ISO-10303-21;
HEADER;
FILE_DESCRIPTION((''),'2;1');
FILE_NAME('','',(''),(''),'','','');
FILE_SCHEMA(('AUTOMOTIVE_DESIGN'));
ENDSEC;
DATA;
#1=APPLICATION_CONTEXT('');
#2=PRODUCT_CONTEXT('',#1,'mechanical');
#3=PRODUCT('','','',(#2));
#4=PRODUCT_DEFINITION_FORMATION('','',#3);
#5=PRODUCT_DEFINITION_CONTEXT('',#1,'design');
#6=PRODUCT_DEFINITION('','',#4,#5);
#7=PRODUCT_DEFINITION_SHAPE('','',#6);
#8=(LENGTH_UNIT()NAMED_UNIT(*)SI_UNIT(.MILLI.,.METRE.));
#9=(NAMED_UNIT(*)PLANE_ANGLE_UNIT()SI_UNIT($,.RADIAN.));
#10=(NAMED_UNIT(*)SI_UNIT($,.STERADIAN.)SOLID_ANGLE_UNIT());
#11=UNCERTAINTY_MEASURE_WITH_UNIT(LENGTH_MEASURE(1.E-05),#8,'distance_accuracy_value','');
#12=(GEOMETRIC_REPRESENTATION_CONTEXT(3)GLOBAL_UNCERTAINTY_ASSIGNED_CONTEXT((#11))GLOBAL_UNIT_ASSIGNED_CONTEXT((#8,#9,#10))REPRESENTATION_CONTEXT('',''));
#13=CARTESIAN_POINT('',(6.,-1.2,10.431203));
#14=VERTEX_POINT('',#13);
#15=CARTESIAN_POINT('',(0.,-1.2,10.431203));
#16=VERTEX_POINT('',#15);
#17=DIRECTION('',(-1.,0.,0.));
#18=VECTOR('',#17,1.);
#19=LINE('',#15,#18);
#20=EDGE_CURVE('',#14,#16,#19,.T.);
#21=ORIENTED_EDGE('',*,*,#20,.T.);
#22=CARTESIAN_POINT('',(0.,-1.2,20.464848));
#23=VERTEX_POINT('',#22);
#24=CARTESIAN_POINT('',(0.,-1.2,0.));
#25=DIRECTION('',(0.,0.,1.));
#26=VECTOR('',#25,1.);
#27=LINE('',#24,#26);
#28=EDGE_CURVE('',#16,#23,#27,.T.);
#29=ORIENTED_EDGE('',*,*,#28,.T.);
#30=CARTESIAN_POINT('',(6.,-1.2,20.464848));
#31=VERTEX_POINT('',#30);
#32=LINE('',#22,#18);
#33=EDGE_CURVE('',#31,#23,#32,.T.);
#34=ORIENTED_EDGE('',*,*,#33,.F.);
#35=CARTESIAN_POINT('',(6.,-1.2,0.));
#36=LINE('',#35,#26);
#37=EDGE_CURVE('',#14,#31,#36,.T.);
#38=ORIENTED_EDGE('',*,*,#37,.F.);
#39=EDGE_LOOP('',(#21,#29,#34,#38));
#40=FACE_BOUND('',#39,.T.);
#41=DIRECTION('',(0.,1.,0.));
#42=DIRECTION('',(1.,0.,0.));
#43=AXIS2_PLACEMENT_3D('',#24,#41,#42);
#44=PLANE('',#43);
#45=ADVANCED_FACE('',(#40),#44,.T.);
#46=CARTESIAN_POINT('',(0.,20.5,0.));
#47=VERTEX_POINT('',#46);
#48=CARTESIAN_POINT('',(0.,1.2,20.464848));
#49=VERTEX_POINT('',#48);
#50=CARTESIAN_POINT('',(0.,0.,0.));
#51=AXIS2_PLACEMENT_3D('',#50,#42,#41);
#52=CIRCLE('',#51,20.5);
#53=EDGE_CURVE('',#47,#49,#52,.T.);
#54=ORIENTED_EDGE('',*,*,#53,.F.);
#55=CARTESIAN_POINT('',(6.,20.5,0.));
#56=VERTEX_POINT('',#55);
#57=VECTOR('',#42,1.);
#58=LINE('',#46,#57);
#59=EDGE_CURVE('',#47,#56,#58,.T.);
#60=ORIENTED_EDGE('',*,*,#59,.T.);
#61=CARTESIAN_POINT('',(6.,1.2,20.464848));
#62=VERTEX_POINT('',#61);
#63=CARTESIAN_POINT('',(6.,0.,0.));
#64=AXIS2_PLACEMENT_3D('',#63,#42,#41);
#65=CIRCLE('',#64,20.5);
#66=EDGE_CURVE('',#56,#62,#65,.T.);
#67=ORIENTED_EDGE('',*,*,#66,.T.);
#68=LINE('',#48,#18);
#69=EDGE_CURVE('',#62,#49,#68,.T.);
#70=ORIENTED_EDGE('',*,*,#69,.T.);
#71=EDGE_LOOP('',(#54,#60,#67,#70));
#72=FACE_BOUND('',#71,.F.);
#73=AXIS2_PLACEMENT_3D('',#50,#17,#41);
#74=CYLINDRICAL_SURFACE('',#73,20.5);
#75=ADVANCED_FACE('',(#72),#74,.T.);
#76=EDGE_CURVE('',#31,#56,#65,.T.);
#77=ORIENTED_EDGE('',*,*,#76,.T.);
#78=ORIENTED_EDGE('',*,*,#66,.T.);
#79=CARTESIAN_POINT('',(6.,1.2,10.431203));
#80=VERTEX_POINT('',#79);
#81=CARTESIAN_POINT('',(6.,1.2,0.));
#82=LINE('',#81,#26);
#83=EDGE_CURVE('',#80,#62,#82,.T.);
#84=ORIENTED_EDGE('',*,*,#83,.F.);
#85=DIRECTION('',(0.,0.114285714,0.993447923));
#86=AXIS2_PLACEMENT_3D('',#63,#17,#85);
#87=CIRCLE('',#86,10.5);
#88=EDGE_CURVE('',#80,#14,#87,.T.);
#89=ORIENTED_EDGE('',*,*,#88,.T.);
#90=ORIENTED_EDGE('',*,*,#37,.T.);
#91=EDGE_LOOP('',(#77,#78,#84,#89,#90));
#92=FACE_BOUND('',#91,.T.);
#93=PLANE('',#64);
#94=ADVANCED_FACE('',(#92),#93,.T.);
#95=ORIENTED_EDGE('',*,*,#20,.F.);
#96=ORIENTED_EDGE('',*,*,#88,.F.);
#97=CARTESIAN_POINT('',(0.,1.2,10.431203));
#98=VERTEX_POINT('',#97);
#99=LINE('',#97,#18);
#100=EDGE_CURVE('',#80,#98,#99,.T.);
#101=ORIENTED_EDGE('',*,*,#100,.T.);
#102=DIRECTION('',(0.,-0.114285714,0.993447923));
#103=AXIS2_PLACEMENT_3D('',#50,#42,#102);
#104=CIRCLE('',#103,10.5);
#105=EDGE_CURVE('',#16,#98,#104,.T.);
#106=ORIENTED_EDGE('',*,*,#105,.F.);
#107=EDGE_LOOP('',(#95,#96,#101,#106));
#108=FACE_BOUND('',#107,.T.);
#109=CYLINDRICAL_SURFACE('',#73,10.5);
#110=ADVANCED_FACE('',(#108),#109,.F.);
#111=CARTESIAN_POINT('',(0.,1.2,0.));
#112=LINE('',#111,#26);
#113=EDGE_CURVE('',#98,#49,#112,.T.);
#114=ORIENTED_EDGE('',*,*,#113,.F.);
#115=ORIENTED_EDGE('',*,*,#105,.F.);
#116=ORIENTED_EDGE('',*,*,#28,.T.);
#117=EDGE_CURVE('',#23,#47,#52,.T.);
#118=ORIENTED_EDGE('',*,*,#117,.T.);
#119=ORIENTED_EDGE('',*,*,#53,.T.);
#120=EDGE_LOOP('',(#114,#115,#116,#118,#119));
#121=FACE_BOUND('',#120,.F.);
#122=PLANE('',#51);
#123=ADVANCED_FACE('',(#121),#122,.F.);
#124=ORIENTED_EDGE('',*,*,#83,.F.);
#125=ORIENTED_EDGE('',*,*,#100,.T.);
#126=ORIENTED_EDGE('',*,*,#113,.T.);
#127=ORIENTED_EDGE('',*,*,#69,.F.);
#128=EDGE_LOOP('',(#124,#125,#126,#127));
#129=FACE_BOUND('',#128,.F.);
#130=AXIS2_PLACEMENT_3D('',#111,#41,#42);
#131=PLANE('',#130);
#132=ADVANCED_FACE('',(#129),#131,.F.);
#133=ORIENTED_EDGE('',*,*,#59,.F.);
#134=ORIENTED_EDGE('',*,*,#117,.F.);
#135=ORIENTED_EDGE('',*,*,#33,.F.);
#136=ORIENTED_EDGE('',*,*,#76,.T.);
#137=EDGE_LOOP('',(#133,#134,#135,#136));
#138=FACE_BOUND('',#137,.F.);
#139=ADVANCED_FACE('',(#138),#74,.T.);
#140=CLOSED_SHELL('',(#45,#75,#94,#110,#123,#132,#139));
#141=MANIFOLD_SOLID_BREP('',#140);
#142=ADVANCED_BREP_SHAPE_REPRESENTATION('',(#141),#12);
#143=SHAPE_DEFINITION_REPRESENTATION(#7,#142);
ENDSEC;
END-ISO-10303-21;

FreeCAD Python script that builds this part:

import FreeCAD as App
import Part
import Sketcher
Q = App.Units.Quantity


def add_polygon(sketch, points):
    """Adds a closed chain of lines whose ends are joined by coincident constraints."""
    first, n = sketch.GeometryCount, len(points)
    for a, b in zip(points, points[1:] + points[:1]):
        sketch.addGeometry(Part.LineSegment(App.Vector(*a, 0), App.Vector(*b, 0)), False)
    for i in range(n):
        sketch.addConstraint(Sketcher.Constraint("Coincident", first + i, 2, first + (i + 1) % n, 1))

doc = App.newDocument("Part")
body = doc.addObject("PartDesign::Body", "Body")

sketch1 = doc.addObject("Sketcher::SketchObject", "Sketch")
body.addObject(sketch1)
sketch1.AttachmentSupport = (doc.YZ_Plane, [""])
sketch1.MapMode = "FlatFace"
sketch1.addGeometry(Part.Circle(App.Vector(0, 0, 0), App.Vector(0, 0, 1), 20), False)
sketch1.addGeometry(Part.Circle(App.Vector(0, 0, 0), App.Vector(0, 0, 1), 10), False)
sketch1.addConstraint(Sketcher.Constraint("Coincident", 0, 3, -1, 1))
sketch1.addConstraint(Sketcher.Constraint("Coincident", 1, 3, -1, 1))
sketch1.addConstraint(Sketcher.Constraint("Diameter", 0, Q("41 mm")))
sketch1.addConstraint(Sketcher.Constraint("Diameter", 1, Q("21 mm")))
pad1 = doc.addObject("PartDesign::Pad", "Pad")
body.addObject(pad1)
pad1.Profile = sketch1
pad1.Length = 6

sketch2 = doc.addObject("Sketcher::SketchObject", "Sketch001")
body.addObject(sketch2)
sketch2.AttachmentSupport = (doc.XY_Plane, [""])
sketch2.MapMode = "FlatFace"
add_polygon(sketch2, [(0, -1.2), (6, -1.2), (6, 1.2), (0, 1.2)])
sketch2.addConstraint(Sketcher.Constraint("Horizontal", 0))
sketch2.addConstraint(Sketcher.Constraint("Vertical", 1))
sketch2.addConstraint(Sketcher.Constraint("Horizontal", 2))
sketch2.addConstraint(Sketcher.Constraint("Vertical", 3))
sketch2.addConstraint(Sketcher.Constraint("Symmetric", 2, 2, 3, 2, -1, 1))
sketch2.addConstraint(Sketcher.Constraint("DistanceY", 0, 2, -1, 1, Q("1.2 mm")))
sketch2.addConstraint(Sketcher.Constraint("DistanceX", 0, 1, 0, 2, Q("6 mm")))
pocket1 = doc.addObject("PartDesign::Pocket", "Pocket")
body.addObject(pocket1)
pocket1.Profile = sketch2
pocket1.Length = 20.4648
pocket1.Reversed = True

doc.recompute()
